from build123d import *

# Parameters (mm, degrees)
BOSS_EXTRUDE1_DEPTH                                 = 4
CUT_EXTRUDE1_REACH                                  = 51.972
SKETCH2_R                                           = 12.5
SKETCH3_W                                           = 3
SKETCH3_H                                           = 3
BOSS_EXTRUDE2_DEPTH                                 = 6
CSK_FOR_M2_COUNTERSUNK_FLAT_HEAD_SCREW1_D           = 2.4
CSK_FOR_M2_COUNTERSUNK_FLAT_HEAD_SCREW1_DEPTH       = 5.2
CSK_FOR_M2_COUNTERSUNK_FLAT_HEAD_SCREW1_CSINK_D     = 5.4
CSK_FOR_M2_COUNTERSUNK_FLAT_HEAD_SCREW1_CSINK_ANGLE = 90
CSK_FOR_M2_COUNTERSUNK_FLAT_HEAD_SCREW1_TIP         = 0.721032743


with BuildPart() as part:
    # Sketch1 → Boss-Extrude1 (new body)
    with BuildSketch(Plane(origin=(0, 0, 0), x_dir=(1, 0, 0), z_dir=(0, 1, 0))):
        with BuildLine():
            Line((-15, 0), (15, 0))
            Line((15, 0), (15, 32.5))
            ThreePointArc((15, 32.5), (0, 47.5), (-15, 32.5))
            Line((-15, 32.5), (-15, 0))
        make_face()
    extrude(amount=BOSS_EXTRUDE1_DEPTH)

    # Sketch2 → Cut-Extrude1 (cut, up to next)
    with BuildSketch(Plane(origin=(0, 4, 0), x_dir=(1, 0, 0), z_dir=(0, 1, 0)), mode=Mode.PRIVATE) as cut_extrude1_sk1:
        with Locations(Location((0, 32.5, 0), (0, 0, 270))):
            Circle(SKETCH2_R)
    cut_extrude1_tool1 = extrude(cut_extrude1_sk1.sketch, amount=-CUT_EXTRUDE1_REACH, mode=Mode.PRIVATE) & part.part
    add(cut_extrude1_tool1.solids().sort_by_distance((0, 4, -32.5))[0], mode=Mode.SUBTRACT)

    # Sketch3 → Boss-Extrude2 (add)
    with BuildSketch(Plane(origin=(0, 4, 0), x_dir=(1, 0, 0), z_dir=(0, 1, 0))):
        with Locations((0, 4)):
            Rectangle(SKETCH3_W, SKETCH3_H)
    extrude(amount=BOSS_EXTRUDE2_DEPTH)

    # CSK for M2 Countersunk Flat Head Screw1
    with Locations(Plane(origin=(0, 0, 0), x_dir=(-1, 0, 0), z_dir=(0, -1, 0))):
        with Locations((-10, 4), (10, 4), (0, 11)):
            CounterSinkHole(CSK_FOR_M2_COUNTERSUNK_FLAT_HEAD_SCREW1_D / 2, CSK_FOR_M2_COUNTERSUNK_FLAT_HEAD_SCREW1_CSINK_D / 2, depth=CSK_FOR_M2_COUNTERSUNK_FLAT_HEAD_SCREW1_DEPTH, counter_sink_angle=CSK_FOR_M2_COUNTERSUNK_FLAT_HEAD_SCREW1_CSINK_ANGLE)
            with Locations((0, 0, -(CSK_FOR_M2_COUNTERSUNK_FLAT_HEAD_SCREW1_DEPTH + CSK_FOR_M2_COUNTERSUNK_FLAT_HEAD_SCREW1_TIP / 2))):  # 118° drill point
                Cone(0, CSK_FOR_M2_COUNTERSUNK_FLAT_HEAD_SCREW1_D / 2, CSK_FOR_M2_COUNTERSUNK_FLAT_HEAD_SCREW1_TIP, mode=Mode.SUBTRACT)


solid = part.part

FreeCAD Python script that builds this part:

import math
import FreeCAD as App
import Part
import Sketcher
from FreeCAD import Vector


def add_polygon(sketch, points):
    """Adds a closed chain of lines whose ends are joined by coincident constraints."""
    first, n = sketch.GeometryCount, len(points)
    for a, b in zip(points, points[1:] + points[:1]):
        sketch.addGeometry(Part.LineSegment(App.Vector(*a, 0), App.Vector(*b, 0)), False)
    for i in range(n):
        sketch.addConstraint(Sketcher.Constraint("Coincident", first + i, 2, first + (i + 1) % n, 1))

doc = App.newDocument("Part")
body = doc.addObject("PartDesign::Body", "Body")

sketch1 = body.newObject("Sketcher::SketchObject", "Sketch")
sketch1.AttachmentSupport = (doc.getObject("XZ_Plane"), [""])
sketch1.MapMode = "FlatFace"
sketch1.addGeometry(Part.LineSegment(Vector(-15, 0, 0), Vector(15, 0, 0)), False)
sketch1.addGeometry(Part.LineSegment(Vector(15, 0, 0), Vector(15, -32.5, 0)), False)
sketch1.addGeometry(Part.ArcOfCircle(Part.Circle(Vector(0, -32.5, 0), Vector(0, 0, 1), 15), math.radians(180), math.radians(360)), False)
sketch1.addGeometry(Part.LineSegment(Vector(-15, -32.5, 0), Vector(-15, 0, 0)), False)
sketch1.addConstraint(Sketcher.Constraint("Coincident", 0, 2, 1, 1))
sketch1.addConstraint(Sketcher.Constraint("Tangent", 1, 2, 2, 2))
sketch1.addConstraint(Sketcher.Constraint("Tangent", 2, 1, 3, 1))
sketch1.addConstraint(Sketcher.Constraint("Coincident", 3, 2, 0, 1))
sketch1.addConstraint(Sketcher.Constraint("Horizontal", 0))
sketch1.addConstraint(Sketcher.Constraint("Vertical", 1))
sketch1.addConstraint(Sketcher.Constraint("Vertical", 3))
sketch1.addConstraint(Sketcher.Constraint("Symmetric", 0, 2, 3, 2, -1, 1))
sketch1.addConstraint(Sketcher.Constraint("Radius", 2, 15.0))
sketch1.addConstraint(Sketcher.Constraint("DistanceY", 1, 2, 1, 1, 32.5))
pad1 = body.newObject("PartDesign::Pad", "Pad")
pad1.Profile = sketch1
pad1.Length = 4
pad1.Reversed = True

sketch2 = body.newObject("Sketcher::SketchObject", "Sketch001")
sketch2.AttachmentSupport = (doc.getObject("XZ_Plane"), [""])
sketch2.MapMode = "FlatFace"
sketch2.AttachmentOffset = App.Placement(Vector(0, 0, -4), App.Rotation())
sketch2.addGeometry(Part.Circle(Vector(0, -32.5, 0), Vector(0, 0, 1), 12.5), False)
sketch2.addConstraint(Sketcher.Constraint("PointOnObject", 0, 3, -2))
sketch2.addConstraint(Sketcher.Constraint("Diameter", 0, 25.0))
sketch2.addConstraint(Sketcher.Constraint("DistanceY", 0, 3, -1, 1, 32.5))
pocket1 = body.newObject("PartDesign::Pocket", "Pocket")
pocket1.Profile = sketch2
pocket1.Type = "UpToFirst"
pocket1.Reversed = True

sketch3 = body.newObject("Sketcher::SketchObject", "Sketch002")
sketch3.AttachmentSupport = (doc.getObject("XZ_Plane"), [""])
sketch3.MapMode = "FlatFace"
sketch3.AttachmentOffset = App.Placement(Vector(0, 0, -4), App.Rotation())
add_polygon(sketch3, [(-1.5, -5.5), (-1.5, -2.5), (1.5, -2.5), (1.5, -5.5)])
sketch3.addConstraint(Sketcher.Constraint("Vertical", 0))
sketch3.addConstraint(Sketcher.Constraint("Horizontal", 1))
sketch3.addConstraint(Sketcher.Constraint("Vertical", 2))
sketch3.addConstraint(Sketcher.Constraint("Horizontal", 3))
sketch3.addConstraint(Sketcher.Constraint("Equal", 3, 0))
sketch3.addConstraint(Sketcher.Constraint("DistanceX", 1, 1, 1, 2, 3.0))
sketch3.addConstraint(Sketcher.Constraint("DistanceX", 0, 2, -1, 1, 1.5))
sketch3.addConstraint(Sketcher.Constraint("DistanceY", 0, 2, -1, 1, 2.5))
pad2 = body.newObject("PartDesign::Pad", "Pad001")
pad2.Profile = sketch3
pad2.Length = 6
pad2.Reversed = True

sketch4 = body.newObject("Sketcher::SketchObject", "Sketch003")
sketch4.AttachmentSupport = (doc.getObject("XZ_Plane"), [""])
sketch4.MapMode = "FlatFace"
sketch4.addGeometry(Part.Circle(Vector(10, -4, 0), Vector(0, 0, 1), 1.2), False)
sketch4.addGeometry(Part.Circle(Vector(-10, -4, 0), Vector(0, 0, 1), 1.2), False)
sketch4.addGeometry(Part.Circle(Vector(0, -11, 0), Vector(0, 0, 1), 1.2), False)
sketch4.addConstraint(Sketcher.Constraint("Equal", 0, 1))
sketch4.addConstraint(Sketcher.Constraint("Equal", 1, 2))
sketch4.addConstraint(Sketcher.Constraint("Symmetric", 0, 3, 1, 3, -2))
sketch4.addConstraint(Sketcher.Constraint("PointOnObject", 2, 3, -2))
sketch4.addConstraint(Sketcher.Constraint("Diameter", 0, 2.4))
sketch4.addConstraint(Sketcher.Constraint("DistanceX", -1, 1, 0, 3, 10.0))
sketch4.addConstraint(Sketcher.Constraint("DistanceY", 0, 3, -1, 1, 4.0))
sketch4.addConstraint(Sketcher.Constraint("DistanceY", 2, 3, -1, 1, 11.0))
doc.recompute()
hole = body.newObject("PartDesign::Hole", "Hole")
hole.Profile = sketch4
hole.ThreadType = "None"
hole.Diameter = 2.4
hole.DepthType = "Dimension"
hole.Depth = 5.2
hole.DrillPoint = "Angled"
hole.DrillPointAngle = 118
hole.HoleCutType = "Countersink"
hole.HoleCutDiameter = 5.4
hole.HoleCutCountersinkAngle = 90

doc.recompute()
